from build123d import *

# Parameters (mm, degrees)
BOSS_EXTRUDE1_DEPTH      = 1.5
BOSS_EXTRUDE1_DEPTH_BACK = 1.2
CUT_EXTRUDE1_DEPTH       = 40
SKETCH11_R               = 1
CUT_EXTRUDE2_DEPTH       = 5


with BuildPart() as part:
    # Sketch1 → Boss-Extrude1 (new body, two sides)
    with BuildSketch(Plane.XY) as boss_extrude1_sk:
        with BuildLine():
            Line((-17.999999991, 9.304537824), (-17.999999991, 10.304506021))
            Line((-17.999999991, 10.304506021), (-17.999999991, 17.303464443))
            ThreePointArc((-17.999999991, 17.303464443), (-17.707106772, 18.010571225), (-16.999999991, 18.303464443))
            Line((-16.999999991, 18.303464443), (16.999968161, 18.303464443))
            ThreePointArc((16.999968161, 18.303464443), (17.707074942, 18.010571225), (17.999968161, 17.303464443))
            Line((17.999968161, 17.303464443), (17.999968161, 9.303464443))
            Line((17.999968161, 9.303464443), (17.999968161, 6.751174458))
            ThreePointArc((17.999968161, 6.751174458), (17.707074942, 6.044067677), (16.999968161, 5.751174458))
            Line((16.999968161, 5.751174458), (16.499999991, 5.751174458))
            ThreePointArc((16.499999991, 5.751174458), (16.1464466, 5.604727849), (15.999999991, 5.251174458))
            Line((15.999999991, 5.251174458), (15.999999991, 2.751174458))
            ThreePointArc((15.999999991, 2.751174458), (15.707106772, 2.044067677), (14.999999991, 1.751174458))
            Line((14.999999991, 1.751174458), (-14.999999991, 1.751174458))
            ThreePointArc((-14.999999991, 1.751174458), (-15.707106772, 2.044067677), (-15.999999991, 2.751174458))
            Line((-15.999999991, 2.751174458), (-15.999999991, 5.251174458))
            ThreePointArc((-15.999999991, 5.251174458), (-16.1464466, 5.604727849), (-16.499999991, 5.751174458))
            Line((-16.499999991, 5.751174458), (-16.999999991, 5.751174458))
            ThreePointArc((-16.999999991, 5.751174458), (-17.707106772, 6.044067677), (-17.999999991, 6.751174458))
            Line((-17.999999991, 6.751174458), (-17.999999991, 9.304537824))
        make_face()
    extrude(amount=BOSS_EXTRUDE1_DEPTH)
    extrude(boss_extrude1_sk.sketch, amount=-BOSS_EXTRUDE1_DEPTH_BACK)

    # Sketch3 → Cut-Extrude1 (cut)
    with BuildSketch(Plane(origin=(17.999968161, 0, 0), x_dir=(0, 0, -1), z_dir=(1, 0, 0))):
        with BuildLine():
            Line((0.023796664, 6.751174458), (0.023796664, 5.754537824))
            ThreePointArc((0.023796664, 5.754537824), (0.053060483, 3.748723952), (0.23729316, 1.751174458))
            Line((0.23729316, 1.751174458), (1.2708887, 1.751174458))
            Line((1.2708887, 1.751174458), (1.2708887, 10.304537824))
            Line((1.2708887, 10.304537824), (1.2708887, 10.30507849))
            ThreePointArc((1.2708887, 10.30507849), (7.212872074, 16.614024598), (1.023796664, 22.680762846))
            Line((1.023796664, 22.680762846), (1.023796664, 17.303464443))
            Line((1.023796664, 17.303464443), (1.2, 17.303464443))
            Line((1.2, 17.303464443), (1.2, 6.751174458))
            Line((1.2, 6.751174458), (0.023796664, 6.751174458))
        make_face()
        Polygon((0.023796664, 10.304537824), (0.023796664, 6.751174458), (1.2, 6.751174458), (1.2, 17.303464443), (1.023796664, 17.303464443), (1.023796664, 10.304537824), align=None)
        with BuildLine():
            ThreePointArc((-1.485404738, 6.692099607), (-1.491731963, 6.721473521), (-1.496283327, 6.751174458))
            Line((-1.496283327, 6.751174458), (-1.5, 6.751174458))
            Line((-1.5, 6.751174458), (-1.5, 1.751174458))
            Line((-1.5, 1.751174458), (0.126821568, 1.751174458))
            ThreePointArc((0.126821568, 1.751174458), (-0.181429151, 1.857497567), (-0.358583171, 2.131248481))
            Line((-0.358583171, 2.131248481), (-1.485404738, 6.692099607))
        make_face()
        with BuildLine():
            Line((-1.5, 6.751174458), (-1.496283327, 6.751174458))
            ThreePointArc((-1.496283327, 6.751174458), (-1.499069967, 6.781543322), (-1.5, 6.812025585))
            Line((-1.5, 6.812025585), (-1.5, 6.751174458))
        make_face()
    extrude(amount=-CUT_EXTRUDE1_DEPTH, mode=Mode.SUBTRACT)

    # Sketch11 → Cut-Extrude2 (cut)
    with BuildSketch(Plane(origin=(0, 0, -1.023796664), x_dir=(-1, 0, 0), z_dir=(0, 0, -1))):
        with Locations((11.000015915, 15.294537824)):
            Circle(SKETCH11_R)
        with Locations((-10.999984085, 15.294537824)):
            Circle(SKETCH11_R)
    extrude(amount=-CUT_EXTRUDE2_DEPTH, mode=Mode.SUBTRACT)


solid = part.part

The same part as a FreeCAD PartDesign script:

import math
import FreeCAD as App
import Part
import Sketcher

V = App.Vector
Q = App.Units.Quantity

doc = App.newDocument("Part")
body = doc.addObject("PartDesign::Body", "Body")

# Sketch on XY plane
sketch1 = doc.addObject("Sketcher::SketchObject", "Sketch")
body.addObject(sketch1)
sketch1.AttachmentSupport = (doc.XY_Plane, [""])
sketch1.MapMode = "FlatFace"
sketch1.addGeometry([
    Part.ArcOfCircle(Part.Circle(V(-17, 17.303464, 0), V(0, 0, 1), 1), math.radians(90), math.radians(180)),  # 0
    Part.LineSegment(V(-18, 17.303464, 0), V(-18, 6.751174, 0)),  # 1
    Part.ArcOfCircle(Part.Circle(V(-17, 6.751174, 0), V(0, 0, 1), 1), math.radians(-180), math.radians(-90)),  # 2
    Part.LineSegment(V(-17, 5.751174, 0), V(-16.5, 5.751174, 0)),  # 3
    Part.ArcOfCircle(Part.Circle(V(-16.5, 5.251174, 0), V(0, 0, 1), 0.5), math.radians(0), math.radians(90)),  # 4
    Part.LineSegment(V(-16, 5.251174, 0), V(-16, 2.751174, 0)),  # 5
    Part.ArcOfCircle(Part.Circle(V(-15, 2.751174, 0), V(0, 0, 1), 1), math.radians(-180), math.radians(-90)),  # 6
    Part.LineSegment(V(-15, 1.751174, 0), V(15, 1.751174, 0)),  # 7
    Part.ArcOfCircle(Part.Circle(V(15, 2.751174, 0), V(0, 0, 1), 1), math.radians(-90), math.radians(0)),  # 8
    Part.LineSegment(V(16, 2.751174, 0), V(16, 5.251174, 0)),  # 9
    Part.ArcOfCircle(Part.Circle(V(16.5, 5.251174, 0), V(0, 0, 1), 0.5), math.radians(90), math.radians(180)),  # 10
    Part.LineSegment(V(16.5, 5.751174, 0), V(16.999968, 5.751174, 0)),  # 11
    Part.ArcOfCircle(Part.Circle(V(16.999968, 6.751174, 0), V(0, 0, 1), 1), math.radians(-90), math.radians(0)),  # 12
    Part.LineSegment(V(17.999968, 6.751174, 0), V(17.999968, 17.303464, 0)),  # 13
    Part.ArcOfCircle(Part.Circle(V(16.999968, 17.303464, 0), V(0, 0, 1), 1), math.radians(0), math.radians(90)),  # 14
    Part.LineSegment(V(16.999968, 18.303464, 0), V(-17, 18.303464, 0)),  # 15
], False)
sketch1.addConstraint([
    Sketcher.Constraint("Tangent", 0, 2, 1, 1),
    Sketcher.Constraint("Tangent", 1, 2, 2, 1),
    Sketcher.Constraint("Tangent", 2, 2, 3, 1),
    Sketcher.Constraint("Tangent", 3, 2, 4, 2),
    Sketcher.Constraint("Tangent", 4, 1, 5, 1),
    Sketcher.Constraint("Tangent", 5, 2, 6, 1),
    Sketcher.Constraint("Tangent", 6, 2, 7, 1),
    Sketcher.Constraint("Tangent", 7, 2, 8, 1),
    Sketcher.Constraint("Tangent", 8, 2, 9, 1),
    Sketcher.Constraint("Tangent", 9, 2, 10, 2),
    Sketcher.Constraint("Tangent", 10, 1, 11, 1),
    Sketcher.Constraint("Tangent", 11, 2, 12, 1),
    Sketcher.Constraint("Tangent", 12, 2, 13, 1),
    Sketcher.Constraint("Tangent", 13, 2, 14, 1),
    Sketcher.Constraint("Tangent", 14, 2, 15, 1),
    Sketcher.Constraint("Tangent", 15, 2, 0, 1),
    Sketcher.Constraint("Vertical", 1),
    Sketcher.Constraint("Horizontal", 3),
    Sketcher.Constraint("Vertical", 5),
    Sketcher.Constraint("Horizontal", 7),
    Sketcher.Constraint("Vertical", 9),
    Sketcher.Constraint("Horizontal", 11),
    Sketcher.Constraint("Vertical", 13),
    Sketcher.Constraint("Horizontal", 15),
    Sketcher.Constraint("Equal", 0, 2),
    Sketcher.Constraint("Equal", 2, 6),
    Sketcher.Constraint("Equal", 6, 8),
    Sketcher.Constraint("Equal", 4, 10),
    Sketcher.Constraint("Equal", 8, 12),
    Sketcher.Constraint("Equal", 12, 14),
    Sketcher.Constraint("Symmetric", 4, 3, 10, 3, -2),
    Sketcher.Constraint("Radius", 0, Q("1 mm")),
    Sketcher.Constraint("Radius", 4, Q("0.5 mm")),
    Sketcher.Constraint("DistanceX", 7, 1, 7, 2, Q("30 mm")),
    Sketcher.Constraint("DistanceX", 3, 1, 3, 2, Q("0.5 mm")),
    Sketcher.Constraint("DistanceY", 5, 2, 5, 1, Q("2.5 mm")),
    Sketcher.Constraint("DistanceX", 11, 1, 11, 2, Q("0.499968 mm")),
    Sketcher.Constraint("DistanceY", 1, 2, 1, 1, Q("10.55229 mm")),
    Sketcher.Constraint("DistanceY", -1, 1, 0, 3, Q("17.303464 mm")),
])
pad1 = doc.addObject("PartDesign::Pad", "Pad")
body.addObject(pad1)
pad1.Profile = sketch1
pad1.Type = "TwoLengths"
pad1.Length = 1.5
pad1.Length2 = 1.2

# Sketch on YZ plane
sketch2 = doc.addObject("Sketcher::SketchObject", "Sketch001")
body.addObject(sketch2)
sketch2.AttachmentSupport = (doc.YZ_Plane, [""])
sketch2.MapMode = "FlatFace"
sketch2.AttachmentOffset = App.Placement(V(0, 0, 17.999968), App.Rotation())
sketch2.addGeometry([
    Part.ArcOfCircle(Part.Circle(V(5.129622, -25.946866, 0), V(0, 0, 1), 25.9306), math.radians(88.619064), math.radians(97.486238)),  # 0
    Part.LineSegment(V(1.751174, -0.237293, 0), V(1.751174, -1.270889, 0)),  # 1
    Part.LineSegment(V(1.751174, -1.270889, 0), V(10.305078, -1.270889, 0)),  # 2
    Part.ArcOfCircle(Part.Circle(V(16.490454, -1.023797, 0), V(0, 0, 1), 6.190309), math.radians(-177.712377), math.radians(0)),  # 3
    Part.LineSegment(V(22.680763, -1.023797, 0), V(10.304538, -1.023797, 0)),  # 4
    Part.LineSegment(V(10.304538, -1.023797, 0), V(10.304538, -0.023797, 0)),  # 5
    Part.LineSegment(V(10.304538, -0.023797, 0), V(5.754538, -0.023797, 0)),  # 6
    Part.ArcOfCircle(Part.Circle(V(6.812026, 1, 0), V(0, 0, 1), 0.5), math.radians(96.990356), math.radians(103.877802)),  # 7
    Part.ArcOfCircle(Part.Circle(V(6.812026, 1, 0), V(0, 0, 1), 0.5), math.radians(89.999999), math.radians(96.990355)),  # 8
    Part.LineSegment(V(6.812026, 1.5, 0), V(1.751174, 1.5, 0)),  # 9
    Part.LineSegment(V(1.751174, 1.5, 0), V(1.751174, -0.126822, 0)),  # 10
    Part.ArcOfCircle(Part.Circle(V(2.251174, -0.126822, 0), V(0, 0, 1), 0.5), math.radians(103.877803), math.radians(180)),  # 11
    Part.LineSegment(V(2.131248, 0.358583, 0), V(6.6921, 1.485405, 0)),  # 12
], False)
sketch2.addConstraint([
    Sketcher.Constraint("Coincident", 0, 2, 1, 1),
    Sketcher.Constraint("Coincident", 1, 2, 2, 1),
    Sketcher.Constraint("Coincident", 2, 2, 3, 1),
    Sketcher.Constraint("Coincident", 3, 2, 4, 1),
    Sketcher.Constraint("Coincident", 4, 2, 5, 1),
    Sketcher.Constraint("Coincident", 5, 2, 6, 1),
    Sketcher.Constraint("Coincident", 6, 2, 0, 1),
    Sketcher.Constraint("Tangent", 7, 1, 8, 2),
    Sketcher.Constraint("Tangent", 8, 1, 9, 1),
    Sketcher.Constraint("Coincident", 9, 2, 10, 1),
    Sketcher.Constraint("Tangent", 10, 2, 11, 2),
    Sketcher.Constraint("Tangent", 11, 1, 12, 1),
    Sketcher.Constraint("Tangent", 12, 2, 7, 2),
    Sketcher.Constraint("Vertical", 1),
    Sketcher.Constraint("Horizontal", 2),
    Sketcher.Constraint("Horizontal", 4),
    Sketcher.Constraint("Vertical", 5),
    Sketcher.Constraint("Horizontal", 6),
    Sketcher.Constraint("Horizontal", 9),
    Sketcher.Constraint("Vertical", 10),
    Sketcher.Constraint("Equal", 7, 8),
    Sketcher.Constraint("Equal", 8, 11),
    Sketcher.Constraint("Vertical", 1, 2, 9, 2),
    Sketcher.Constraint("Radius", 7, Q("0.5 mm")),
    Sketcher.Constraint("DistanceY", 5, 1, 5, 2, Q("1 mm")),
    Sketcher.Constraint("DistanceY", -1, 1, 7, 3, Q("1 mm")),
    Sketcher.Constraint("DistanceY", 3, 3, 5, 2, Q("1 mm")),
    Sketcher.Constraint("DistanceX", 9, 2, 7, 1, Q("5 mm")),
    Sketcher.Constraint("DistanceX", 6, 2, 6, 1, Q("4.55 mm")),
    Sketcher.Constraint("Radius", 0, Q("25.9306 mm")),
    Sketcher.Constraint("Radius", 3, Q("6.190309 mm")),
    Sketcher.Constraint("DistanceX", 9, 2, 9, 1, Q("5.060851 mm")),
    Sketcher.Constraint("DistanceY", 10, 2, 10, 1, Q("1.626822 mm")),
    Sketcher.Constraint("DistanceX", -1, 1, 12, 2, Q("6.6921 mm")),
    Sketcher.Constraint("DistanceY", 6, 2, 12, 2, Q("1.509201 mm")),
    Sketcher.Constraint("DistanceX", 2, 1, 2, 2, Q("8.553904 mm")),
    Sketcher.Constraint("DistanceX", 4, 2, 4, 1, Q("12.376225 mm")),
    Sketcher.Constraint("DistanceY", 1, 2, 1, 1, Q("1.033596 mm")),
    Sketcher.Constraint("DistanceX", -1, 1, 0, 3, Q("5.129622 mm")),
])
pocket1 = doc.addObject("PartDesign::Pocket", "Pocket")
body.addObject(pocket1)
pocket1.Profile = sketch2
pocket1.Length = 40

# Sketch on XY plane
sketch3 = doc.addObject("Sketcher::SketchObject", "Sketch002")
body.addObject(sketch3)
sketch3.AttachmentSupport = (doc.XY_Plane, [""])
sketch3.MapMode = "FlatFace"
sketch3.AttachmentOffset = App.Placement(V(0, 0, -1.023797), App.Rotation())
sketch3.addGeometry([
    Part.Circle(V(-11.000016, 15.294538, 0), V(0, 0, 1), 1),
    Part.Circle(V(10.999984, 15.294538, 0), V(0, 0, 1), 1),
], False)
sketch3.addConstraint([
    Sketcher.Constraint("Equal", 0, 1),
    Sketcher.Constraint("Horizontal", 0, 3, 1, 3),
    Sketcher.Constraint("Diameter", 0, Q("2 mm")),
    Sketcher.Constraint("DistanceX", 0, 3, 1, 3, Q("22 mm")),
    Sketcher.Constraint("DistanceX", 0, 3, -1, 1, Q("11.000016 mm")),
    Sketcher.Constraint("DistanceY", -1, 1, 0, 3, Q("15.294538 mm")),
])
pocket2 = doc.addObject("PartDesign::Pocket", "Pocket001")
body.addObject(pocket2)
pocket2.Profile = sketch3
pocket2.Length = 5
pocket2.Reversed = True

doc.recompute()
